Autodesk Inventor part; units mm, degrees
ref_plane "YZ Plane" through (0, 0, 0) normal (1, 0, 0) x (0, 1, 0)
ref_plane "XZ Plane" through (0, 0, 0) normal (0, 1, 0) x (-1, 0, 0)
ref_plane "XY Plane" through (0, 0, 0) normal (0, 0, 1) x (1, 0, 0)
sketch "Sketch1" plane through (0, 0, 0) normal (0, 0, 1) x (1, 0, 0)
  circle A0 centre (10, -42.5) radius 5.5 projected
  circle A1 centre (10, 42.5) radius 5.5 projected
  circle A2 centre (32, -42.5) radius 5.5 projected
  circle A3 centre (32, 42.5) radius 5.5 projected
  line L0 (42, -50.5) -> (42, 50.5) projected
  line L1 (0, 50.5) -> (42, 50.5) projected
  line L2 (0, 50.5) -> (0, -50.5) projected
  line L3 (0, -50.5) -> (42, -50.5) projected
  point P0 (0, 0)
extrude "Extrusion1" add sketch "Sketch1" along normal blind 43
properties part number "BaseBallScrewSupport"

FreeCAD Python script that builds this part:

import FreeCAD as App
import Part
import Sketcher
from FreeCAD import Vector

doc = App.newDocument("Part")
body = doc.addObject("PartDesign::Body", "Body")

# Sketch on XY plane
sketch1 = body.newObject("Sketcher::SketchObject", "Sketch")
sketch1.AttachmentSupport = (doc.getObject("XY_Plane"), [""])
sketch1.MapMode = "FlatFace"
sketch1.addGeometry(Part.LineSegment(Vector(0, -50.5, 0), Vector(42, -50.5, 0)), False)
sketch1.addGeometry(Part.LineSegment(Vector(42, -50.5, 0), Vector(42, 50.5, 0)), False)
sketch1.addGeometry(Part.LineSegment(Vector(42, 50.5, 0), Vector(0, 50.5, 0)), False)
sketch1.addGeometry(Part.LineSegment(Vector(0, 50.5, 0), Vector(0, -50.5, 0)), False)
sketch1.addGeometry(Part.Circle(Vector(10, -42.5, 0), Vector(0, 0, 1), 5.5), False)
sketch1.addGeometry(Part.Circle(Vector(32, -42.5, 0), Vector(0, 0, 1), 5.5), False)
sketch1.addGeometry(Part.Circle(Vector(10, 42.5, 0), Vector(0, 0, 1), 5.5), False)
sketch1.addGeometry(Part.Circle(Vector(32, 42.5, 0), Vector(0, 0, 1), 5.5), False)
sketch1.addConstraint(Sketcher.Constraint("Coincident", 0, 2, 1, 1))
sketch1.addConstraint(Sketcher.Constraint("Coincident", 1, 2, 2, 1))
sketch1.addConstraint(Sketcher.Constraint("Coincident", 2, 2, 3, 1))
sketch1.addConstraint(Sketcher.Constraint("Coincident", 3, 2, 0, 1))
sketch1.addConstraint(Sketcher.Constraint("Horizontal", 0))
sketch1.addConstraint(Sketcher.Constraint("Vertical", 1))
sketch1.addConstraint(Sketcher.Constraint("Horizontal", 2))
sketch1.addConstraint(Sketcher.Constraint("Vertical", 3))
sketch1.addConstraint(Sketcher.Constraint("Equal", 4, 5))
sketch1.addConstraint(Sketcher.Constraint("Equal", 5, 6))
sketch1.addConstraint(Sketcher.Constraint("Equal", 6, 7))
sketch1.addConstraint(Sketcher.Constraint("Symmetric", 2, 2, 3, 2, -1, 1))
sketch1.addConstraint(Sketcher.Constraint("Symmetric", 4, 3, 6, 3, -1))
sketch1.addConstraint(Sketcher.Constraint("Symmetric", 5, 3, 7, 3, -1))
sketch1.addConstraint(Sketcher.Constraint("Horizontal", 4, 3, 5, 3))
sketch1.addConstraint(Sketcher.Constraint("Diameter", 4, 11.0))
sketch1.addConstraint(Sketcher.Constraint("DistanceX", 0, 1, 0, 2, 42.0))
sketch1.addConstraint(Sketcher.Constraint("DistanceY", 1, 1, 1, 2, 101.0))
sketch1.addConstraint(Sketcher.Constraint("DistanceX", -1, 1, 4, 3, 10.0))
sketch1.addConstraint(Sketcher.Constraint("DistanceX", -1, 1, 5, 3, 32.0))
sketch1.addConstraint(Sketcher.Constraint("DistanceY", 4, 3, 6, 3, 85.0))
pad1 = body.newObject("PartDesign::Pad", "Pad")
pad1.Profile = sketch1
pad1.Length = 43

doc.recompute()
